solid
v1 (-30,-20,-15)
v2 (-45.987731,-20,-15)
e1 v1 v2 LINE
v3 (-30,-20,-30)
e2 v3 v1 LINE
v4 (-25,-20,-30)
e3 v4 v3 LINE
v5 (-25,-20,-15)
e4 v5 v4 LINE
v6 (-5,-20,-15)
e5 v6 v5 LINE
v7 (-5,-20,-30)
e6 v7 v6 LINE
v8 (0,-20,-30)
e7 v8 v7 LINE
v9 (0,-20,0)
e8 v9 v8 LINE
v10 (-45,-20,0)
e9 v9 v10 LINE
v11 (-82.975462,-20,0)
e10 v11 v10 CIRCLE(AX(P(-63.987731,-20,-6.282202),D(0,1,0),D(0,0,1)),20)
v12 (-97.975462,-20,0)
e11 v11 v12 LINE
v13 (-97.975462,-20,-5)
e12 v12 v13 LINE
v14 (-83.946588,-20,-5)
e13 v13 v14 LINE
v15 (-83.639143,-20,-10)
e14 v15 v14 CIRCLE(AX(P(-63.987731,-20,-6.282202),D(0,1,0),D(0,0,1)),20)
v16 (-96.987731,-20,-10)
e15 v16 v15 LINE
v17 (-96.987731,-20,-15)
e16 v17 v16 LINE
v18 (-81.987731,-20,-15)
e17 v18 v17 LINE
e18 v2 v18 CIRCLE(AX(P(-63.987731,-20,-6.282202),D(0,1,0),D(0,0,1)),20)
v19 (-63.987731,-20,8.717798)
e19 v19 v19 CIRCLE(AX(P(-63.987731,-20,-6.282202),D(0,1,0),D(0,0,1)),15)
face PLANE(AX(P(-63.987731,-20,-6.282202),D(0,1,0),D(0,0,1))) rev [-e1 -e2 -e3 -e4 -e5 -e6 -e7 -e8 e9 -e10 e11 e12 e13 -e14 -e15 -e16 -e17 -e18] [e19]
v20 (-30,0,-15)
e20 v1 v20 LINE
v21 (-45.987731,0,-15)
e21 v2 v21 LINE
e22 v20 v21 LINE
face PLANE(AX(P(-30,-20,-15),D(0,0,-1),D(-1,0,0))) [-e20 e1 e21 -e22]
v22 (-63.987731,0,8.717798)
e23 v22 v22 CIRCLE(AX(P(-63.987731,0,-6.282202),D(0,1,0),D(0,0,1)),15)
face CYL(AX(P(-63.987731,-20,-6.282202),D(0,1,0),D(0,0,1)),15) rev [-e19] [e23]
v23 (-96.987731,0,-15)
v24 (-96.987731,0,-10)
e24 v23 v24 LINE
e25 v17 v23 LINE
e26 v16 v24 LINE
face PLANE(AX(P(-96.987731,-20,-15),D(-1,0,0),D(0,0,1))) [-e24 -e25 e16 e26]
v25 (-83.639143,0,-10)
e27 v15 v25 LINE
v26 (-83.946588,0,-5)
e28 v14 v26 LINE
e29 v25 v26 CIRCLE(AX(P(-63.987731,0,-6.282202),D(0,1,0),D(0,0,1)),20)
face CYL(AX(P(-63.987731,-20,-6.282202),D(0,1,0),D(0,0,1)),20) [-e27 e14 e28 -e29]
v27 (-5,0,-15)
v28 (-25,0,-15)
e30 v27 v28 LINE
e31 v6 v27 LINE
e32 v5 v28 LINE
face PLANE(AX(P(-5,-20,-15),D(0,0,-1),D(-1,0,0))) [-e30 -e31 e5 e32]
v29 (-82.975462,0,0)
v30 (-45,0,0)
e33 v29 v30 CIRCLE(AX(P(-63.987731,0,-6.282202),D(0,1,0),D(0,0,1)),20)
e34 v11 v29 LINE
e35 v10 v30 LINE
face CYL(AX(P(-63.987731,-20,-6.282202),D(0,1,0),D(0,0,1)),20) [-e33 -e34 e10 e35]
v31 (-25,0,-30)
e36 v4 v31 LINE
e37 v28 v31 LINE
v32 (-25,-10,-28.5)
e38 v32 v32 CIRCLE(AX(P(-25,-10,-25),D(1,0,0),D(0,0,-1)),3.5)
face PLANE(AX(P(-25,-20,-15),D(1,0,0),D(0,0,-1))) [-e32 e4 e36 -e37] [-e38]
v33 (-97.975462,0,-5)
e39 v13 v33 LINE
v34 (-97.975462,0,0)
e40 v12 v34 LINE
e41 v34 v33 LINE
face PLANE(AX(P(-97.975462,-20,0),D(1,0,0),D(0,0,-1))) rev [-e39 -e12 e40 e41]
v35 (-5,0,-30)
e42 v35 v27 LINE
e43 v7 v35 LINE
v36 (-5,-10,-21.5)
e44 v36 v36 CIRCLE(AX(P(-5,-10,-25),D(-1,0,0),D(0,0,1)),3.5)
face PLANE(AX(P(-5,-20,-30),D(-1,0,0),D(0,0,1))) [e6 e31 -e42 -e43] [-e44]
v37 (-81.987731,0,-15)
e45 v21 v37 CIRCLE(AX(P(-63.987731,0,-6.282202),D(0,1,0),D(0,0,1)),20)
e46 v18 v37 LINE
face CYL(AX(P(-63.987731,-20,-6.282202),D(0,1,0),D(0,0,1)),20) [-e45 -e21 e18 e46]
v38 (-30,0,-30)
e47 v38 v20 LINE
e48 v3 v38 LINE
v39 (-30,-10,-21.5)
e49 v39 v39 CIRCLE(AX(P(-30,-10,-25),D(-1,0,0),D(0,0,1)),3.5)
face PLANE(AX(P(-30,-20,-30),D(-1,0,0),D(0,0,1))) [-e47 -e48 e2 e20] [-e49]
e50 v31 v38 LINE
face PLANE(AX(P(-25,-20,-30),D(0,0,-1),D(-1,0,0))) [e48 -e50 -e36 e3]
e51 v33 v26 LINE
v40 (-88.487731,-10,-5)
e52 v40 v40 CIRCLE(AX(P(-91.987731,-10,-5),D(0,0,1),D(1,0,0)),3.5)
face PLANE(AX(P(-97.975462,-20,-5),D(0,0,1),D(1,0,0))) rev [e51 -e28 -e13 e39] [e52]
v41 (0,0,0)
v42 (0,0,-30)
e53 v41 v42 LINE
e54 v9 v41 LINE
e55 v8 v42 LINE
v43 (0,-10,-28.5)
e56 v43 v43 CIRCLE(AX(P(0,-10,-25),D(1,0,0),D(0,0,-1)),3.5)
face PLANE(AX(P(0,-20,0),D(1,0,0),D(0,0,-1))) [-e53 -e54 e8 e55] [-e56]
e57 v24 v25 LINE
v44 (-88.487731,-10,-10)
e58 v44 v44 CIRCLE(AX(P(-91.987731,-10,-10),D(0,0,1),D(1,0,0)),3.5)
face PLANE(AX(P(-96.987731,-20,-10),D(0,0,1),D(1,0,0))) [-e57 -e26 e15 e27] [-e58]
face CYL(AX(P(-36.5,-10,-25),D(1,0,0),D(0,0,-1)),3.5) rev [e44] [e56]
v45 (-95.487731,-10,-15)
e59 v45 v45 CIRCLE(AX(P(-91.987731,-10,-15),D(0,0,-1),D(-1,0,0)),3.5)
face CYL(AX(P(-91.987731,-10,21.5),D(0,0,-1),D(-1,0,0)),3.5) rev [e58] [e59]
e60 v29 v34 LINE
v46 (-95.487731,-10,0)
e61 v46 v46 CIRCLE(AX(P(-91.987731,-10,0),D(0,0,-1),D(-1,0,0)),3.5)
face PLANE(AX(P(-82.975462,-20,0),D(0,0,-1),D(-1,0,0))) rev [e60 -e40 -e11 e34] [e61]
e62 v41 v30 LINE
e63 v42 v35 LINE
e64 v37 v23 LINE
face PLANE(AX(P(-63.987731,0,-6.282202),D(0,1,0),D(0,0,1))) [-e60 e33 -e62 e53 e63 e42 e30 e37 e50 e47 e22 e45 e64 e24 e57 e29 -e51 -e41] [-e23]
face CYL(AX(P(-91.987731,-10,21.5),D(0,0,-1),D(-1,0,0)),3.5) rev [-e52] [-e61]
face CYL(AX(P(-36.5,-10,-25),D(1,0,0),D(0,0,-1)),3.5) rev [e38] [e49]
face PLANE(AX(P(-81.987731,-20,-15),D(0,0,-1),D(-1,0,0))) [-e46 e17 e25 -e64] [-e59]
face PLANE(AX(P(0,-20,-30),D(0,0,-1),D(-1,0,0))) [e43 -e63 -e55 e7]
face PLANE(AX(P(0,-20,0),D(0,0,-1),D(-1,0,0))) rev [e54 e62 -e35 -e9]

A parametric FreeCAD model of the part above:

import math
import FreeCAD as App
import Part
import Sketcher

V = App.Vector
Q = App.Units.Quantity

doc = App.newDocument("Part")
body = doc.addObject("PartDesign::Body", "Body")

# Sketch on XZ plane
sketch1 = body.newObject("Sketcher::SketchObject", "Sketch")
sketch1.AttachmentSupport = (doc.getObject("XZ_Plane"), [""])
sketch1.MapMode = "FlatFace"
sketch1.addGeometry([
    Part.LineSegment(V(0, 0, 0), V(0, -30, 0)),  # 0
    Part.LineSegment(V(0, -30, 0), V(-5, -30, 0)),  # 1
    Part.LineSegment(V(-5, -30, 0), V(-5, -15, 0)),  # 2
    Part.LineSegment(V(-5, -15, 0), V(-25, -15, 0)),  # 3
    Part.LineSegment(V(-25, -15, 0), V(-25, -30, 0)),  # 4
    Part.LineSegment(V(-25, -30, 0), V(-30, -30, 0)),  # 5
    Part.LineSegment(V(-30, -30, 0), V(-30, -15, 0)),  # 6
    Part.LineSegment(V(-30, -15, 0), V(-46, -15, 0)),  # 7
    Part.ArcOfCircle(Part.Circle(V(-64, -6, 0), V(0, 0, 1), 20), math.radians(-154), math.radians(-26)),  # 8
    Part.LineSegment(V(-82, -15, 0), V(-97, -15, 0)),  # 9
    Part.LineSegment(V(-97, -15, 0), V(-97, -10, 0)),  # 10
    Part.LineSegment(V(-97, -10, 0), V(-84, -10, 0)),  # 11
    Part.ArcOfCircle(Part.Circle(V(-64, -6, 0), V(0, 0, 1), 20), math.radians(176.32), math.radians(190.71)),  # 12
    Part.LineSegment(V(-84, -5, 0), V(-98, -5, 0)),  # 13
    Part.LineSegment(V(-98, -5, 0), V(-98, 0, 0)),  # 14
    Part.LineSegment(V(-98, 0, 0), V(-83, 0, 0)),  # 15
    Part.ArcOfCircle(Part.Circle(V(-64, -6, 0), V(0, 0, 1), 20), math.radians(18), math.radians(162)),  # 16
    Part.LineSegment(V(-45, 0, 0), V(0, 0, 0)),  # 17
    Part.Circle(V(-64, -6, 0), V(0, 0, 1), 15),  # 18
], False)
sketch1.addConstraint([
    Sketcher.Constraint("Coincident", 0, 2, 1, 1),
    Sketcher.Constraint("Coincident", 1, 2, 2, 1),
    Sketcher.Constraint("Coincident", 2, 2, 3, 1),
    Sketcher.Constraint("Coincident", 3, 2, 4, 1),
    Sketcher.Constraint("Coincident", 4, 2, 5, 1),
    Sketcher.Constraint("Coincident", 5, 2, 6, 1),
    Sketcher.Constraint("Coincident", 6, 2, 7, 1),
    Sketcher.Constraint("Coincident", 7, 2, 8, 2),
    Sketcher.Constraint("Coincident", 8, 1, 9, 1),
    Sketcher.Constraint("Coincident", 9, 2, 10, 1),
    Sketcher.Constraint("Coincident", 10, 2, 11, 1),
    Sketcher.Constraint("Coincident", 11, 2, 12, 2),
    Sketcher.Constraint("Coincident", 12, 1, 13, 1),
    Sketcher.Constraint("Coincident", 13, 2, 14, 1),
    Sketcher.Constraint("Coincident", 14, 2, 15, 1),
    Sketcher.Constraint("Coincident", 15, 2, 16, 2),
    Sketcher.Constraint("Coincident", 16, 1, 17, 1),
    Sketcher.Constraint("Coincident", 17, 2, 0, 1),
    Sketcher.Constraint("Vertical", 0),
    Sketcher.Constraint("Horizontal", 1),
    Sketcher.Constraint("Vertical", 2),
    Sketcher.Constraint("Horizontal", 3),
    Sketcher.Constraint("Vertical", 4),
    Sketcher.Constraint("Horizontal", 5),
    Sketcher.Constraint("Vertical", 6),
    Sketcher.Constraint("Horizontal", 7),
    Sketcher.Constraint("Horizontal", 9),
    Sketcher.Constraint("Vertical", 10),
    Sketcher.Constraint("Horizontal", 11),
    Sketcher.Constraint("Horizontal", 13),
    Sketcher.Constraint("Vertical", 14),
    Sketcher.Constraint("Horizontal", 15),
    Sketcher.Constraint("Horizontal", 17),
    Sketcher.Constraint("Coincident", 17, 2, -1, 1),
    Sketcher.Constraint("Coincident", 12, 3, 8, 3),
    Sketcher.Constraint("Coincident", 16, 3, 8, 3),
    Sketcher.Constraint("Coincident", 18, 3, 8, 3),
    Sketcher.Constraint("Equal", 8, 12),
    Sketcher.Constraint("Equal", 12, 16),
    Sketcher.Constraint("PointOnObject", 14, 2, -1),
    Sketcher.Constraint("Horizontal", 1, 2, 4, 2),
    Sketcher.Constraint("Horizontal", 3, 2, 6, 2),
    Sketcher.Constraint("Horizontal", 7, 2, 8, 1),
    Sketcher.Constraint("Equal", 1, 5),
    Sketcher.Constraint("Equal", 9, 15),
    Sketcher.Constraint("Equal", 15, 2),
    Sketcher.Constraint("Equal", 5, 10),
    Sketcher.Constraint("Equal", 10, 14),
    Sketcher.Constraint("Diameter", 18, Q("30 mm")),
    Sketcher.Constraint("Radius", 8, Q("20 mm")),
    Sketcher.Constraint("DistanceX", 1, 2, 1, 1, Q("5 mm")),
    Sketcher.Constraint("DistanceX", 3, 2, 3, 1, Q("20 mm")),
    Sketcher.Constraint("DistanceX", 9, 2, 9, 1, Q("15 mm")),
    Sketcher.Constraint("DistanceX", 17, 1, 17, 2, Q("45 mm")),
    Sketcher.Constraint("DistanceY", 0, 2, 0, 1, Q("30 mm")),
    Sketcher.Constraint("DistanceX", 12, 3, 7, 2, Q("18 mm")),
])
pad1 = body.newObject("PartDesign::Pad", "Pad")
pad1.Profile = sketch1
pad1.Length = 20

# Sketch on YZ plane
sketch2 = body.newObject("Sketcher::SketchObject", "Sketch001")
sketch2.AttachmentSupport = (doc.getObject("YZ_Plane"), [""])
sketch2.MapMode = "FlatFace"
sketch2.addGeometry(Part.Circle(V(-10, -25, 0), V(0, 0, 1), 3.5), False)
sketch2.addConstraint([
    Sketcher.Constraint("Diameter", 0, Q("7 mm")),
    Sketcher.Constraint("DistanceX", 0, 3, -1, 1, Q("10 mm")),
    Sketcher.Constraint("DistanceY", 0, 3, -1, 1, Q("25 mm")),
])
pocket1 = body.newObject("PartDesign::Pocket", "Pocket")
pocket1.Profile = sketch2
pocket1.Length = 73
pocket1.Midplane = True

# Sketch on XY plane
sketch3 = body.newObject("Sketcher::SketchObject", "Sketch002")
sketch3.AttachmentSupport = (doc.getObject("XY_Plane"), [""])
sketch3.MapMode = "FlatFace"
sketch3.AttachmentOffset = App.Placement(V(0, 0, -15), App.Rotation())
sketch3.addGeometry(Part.Circle(V(-92, -10, 0), V(0, 0, 1), 3.5), False)
sketch3.addConstraint([
    Sketcher.Constraint("Diameter", 0, Q("7 mm")),
    Sketcher.Constraint("DistanceY", 0, 3, -1, 1, Q("10 mm")),
    Sketcher.Constraint("DistanceX", 0, 3, -1, 1, Q("91.987731 mm")),
])
pocket2 = body.newObject("PartDesign::Pocket", "Pocket001")
pocket2.Profile = sketch3
pocket2.Length = 73
pocket2.Midplane = True

doc.recompute()
